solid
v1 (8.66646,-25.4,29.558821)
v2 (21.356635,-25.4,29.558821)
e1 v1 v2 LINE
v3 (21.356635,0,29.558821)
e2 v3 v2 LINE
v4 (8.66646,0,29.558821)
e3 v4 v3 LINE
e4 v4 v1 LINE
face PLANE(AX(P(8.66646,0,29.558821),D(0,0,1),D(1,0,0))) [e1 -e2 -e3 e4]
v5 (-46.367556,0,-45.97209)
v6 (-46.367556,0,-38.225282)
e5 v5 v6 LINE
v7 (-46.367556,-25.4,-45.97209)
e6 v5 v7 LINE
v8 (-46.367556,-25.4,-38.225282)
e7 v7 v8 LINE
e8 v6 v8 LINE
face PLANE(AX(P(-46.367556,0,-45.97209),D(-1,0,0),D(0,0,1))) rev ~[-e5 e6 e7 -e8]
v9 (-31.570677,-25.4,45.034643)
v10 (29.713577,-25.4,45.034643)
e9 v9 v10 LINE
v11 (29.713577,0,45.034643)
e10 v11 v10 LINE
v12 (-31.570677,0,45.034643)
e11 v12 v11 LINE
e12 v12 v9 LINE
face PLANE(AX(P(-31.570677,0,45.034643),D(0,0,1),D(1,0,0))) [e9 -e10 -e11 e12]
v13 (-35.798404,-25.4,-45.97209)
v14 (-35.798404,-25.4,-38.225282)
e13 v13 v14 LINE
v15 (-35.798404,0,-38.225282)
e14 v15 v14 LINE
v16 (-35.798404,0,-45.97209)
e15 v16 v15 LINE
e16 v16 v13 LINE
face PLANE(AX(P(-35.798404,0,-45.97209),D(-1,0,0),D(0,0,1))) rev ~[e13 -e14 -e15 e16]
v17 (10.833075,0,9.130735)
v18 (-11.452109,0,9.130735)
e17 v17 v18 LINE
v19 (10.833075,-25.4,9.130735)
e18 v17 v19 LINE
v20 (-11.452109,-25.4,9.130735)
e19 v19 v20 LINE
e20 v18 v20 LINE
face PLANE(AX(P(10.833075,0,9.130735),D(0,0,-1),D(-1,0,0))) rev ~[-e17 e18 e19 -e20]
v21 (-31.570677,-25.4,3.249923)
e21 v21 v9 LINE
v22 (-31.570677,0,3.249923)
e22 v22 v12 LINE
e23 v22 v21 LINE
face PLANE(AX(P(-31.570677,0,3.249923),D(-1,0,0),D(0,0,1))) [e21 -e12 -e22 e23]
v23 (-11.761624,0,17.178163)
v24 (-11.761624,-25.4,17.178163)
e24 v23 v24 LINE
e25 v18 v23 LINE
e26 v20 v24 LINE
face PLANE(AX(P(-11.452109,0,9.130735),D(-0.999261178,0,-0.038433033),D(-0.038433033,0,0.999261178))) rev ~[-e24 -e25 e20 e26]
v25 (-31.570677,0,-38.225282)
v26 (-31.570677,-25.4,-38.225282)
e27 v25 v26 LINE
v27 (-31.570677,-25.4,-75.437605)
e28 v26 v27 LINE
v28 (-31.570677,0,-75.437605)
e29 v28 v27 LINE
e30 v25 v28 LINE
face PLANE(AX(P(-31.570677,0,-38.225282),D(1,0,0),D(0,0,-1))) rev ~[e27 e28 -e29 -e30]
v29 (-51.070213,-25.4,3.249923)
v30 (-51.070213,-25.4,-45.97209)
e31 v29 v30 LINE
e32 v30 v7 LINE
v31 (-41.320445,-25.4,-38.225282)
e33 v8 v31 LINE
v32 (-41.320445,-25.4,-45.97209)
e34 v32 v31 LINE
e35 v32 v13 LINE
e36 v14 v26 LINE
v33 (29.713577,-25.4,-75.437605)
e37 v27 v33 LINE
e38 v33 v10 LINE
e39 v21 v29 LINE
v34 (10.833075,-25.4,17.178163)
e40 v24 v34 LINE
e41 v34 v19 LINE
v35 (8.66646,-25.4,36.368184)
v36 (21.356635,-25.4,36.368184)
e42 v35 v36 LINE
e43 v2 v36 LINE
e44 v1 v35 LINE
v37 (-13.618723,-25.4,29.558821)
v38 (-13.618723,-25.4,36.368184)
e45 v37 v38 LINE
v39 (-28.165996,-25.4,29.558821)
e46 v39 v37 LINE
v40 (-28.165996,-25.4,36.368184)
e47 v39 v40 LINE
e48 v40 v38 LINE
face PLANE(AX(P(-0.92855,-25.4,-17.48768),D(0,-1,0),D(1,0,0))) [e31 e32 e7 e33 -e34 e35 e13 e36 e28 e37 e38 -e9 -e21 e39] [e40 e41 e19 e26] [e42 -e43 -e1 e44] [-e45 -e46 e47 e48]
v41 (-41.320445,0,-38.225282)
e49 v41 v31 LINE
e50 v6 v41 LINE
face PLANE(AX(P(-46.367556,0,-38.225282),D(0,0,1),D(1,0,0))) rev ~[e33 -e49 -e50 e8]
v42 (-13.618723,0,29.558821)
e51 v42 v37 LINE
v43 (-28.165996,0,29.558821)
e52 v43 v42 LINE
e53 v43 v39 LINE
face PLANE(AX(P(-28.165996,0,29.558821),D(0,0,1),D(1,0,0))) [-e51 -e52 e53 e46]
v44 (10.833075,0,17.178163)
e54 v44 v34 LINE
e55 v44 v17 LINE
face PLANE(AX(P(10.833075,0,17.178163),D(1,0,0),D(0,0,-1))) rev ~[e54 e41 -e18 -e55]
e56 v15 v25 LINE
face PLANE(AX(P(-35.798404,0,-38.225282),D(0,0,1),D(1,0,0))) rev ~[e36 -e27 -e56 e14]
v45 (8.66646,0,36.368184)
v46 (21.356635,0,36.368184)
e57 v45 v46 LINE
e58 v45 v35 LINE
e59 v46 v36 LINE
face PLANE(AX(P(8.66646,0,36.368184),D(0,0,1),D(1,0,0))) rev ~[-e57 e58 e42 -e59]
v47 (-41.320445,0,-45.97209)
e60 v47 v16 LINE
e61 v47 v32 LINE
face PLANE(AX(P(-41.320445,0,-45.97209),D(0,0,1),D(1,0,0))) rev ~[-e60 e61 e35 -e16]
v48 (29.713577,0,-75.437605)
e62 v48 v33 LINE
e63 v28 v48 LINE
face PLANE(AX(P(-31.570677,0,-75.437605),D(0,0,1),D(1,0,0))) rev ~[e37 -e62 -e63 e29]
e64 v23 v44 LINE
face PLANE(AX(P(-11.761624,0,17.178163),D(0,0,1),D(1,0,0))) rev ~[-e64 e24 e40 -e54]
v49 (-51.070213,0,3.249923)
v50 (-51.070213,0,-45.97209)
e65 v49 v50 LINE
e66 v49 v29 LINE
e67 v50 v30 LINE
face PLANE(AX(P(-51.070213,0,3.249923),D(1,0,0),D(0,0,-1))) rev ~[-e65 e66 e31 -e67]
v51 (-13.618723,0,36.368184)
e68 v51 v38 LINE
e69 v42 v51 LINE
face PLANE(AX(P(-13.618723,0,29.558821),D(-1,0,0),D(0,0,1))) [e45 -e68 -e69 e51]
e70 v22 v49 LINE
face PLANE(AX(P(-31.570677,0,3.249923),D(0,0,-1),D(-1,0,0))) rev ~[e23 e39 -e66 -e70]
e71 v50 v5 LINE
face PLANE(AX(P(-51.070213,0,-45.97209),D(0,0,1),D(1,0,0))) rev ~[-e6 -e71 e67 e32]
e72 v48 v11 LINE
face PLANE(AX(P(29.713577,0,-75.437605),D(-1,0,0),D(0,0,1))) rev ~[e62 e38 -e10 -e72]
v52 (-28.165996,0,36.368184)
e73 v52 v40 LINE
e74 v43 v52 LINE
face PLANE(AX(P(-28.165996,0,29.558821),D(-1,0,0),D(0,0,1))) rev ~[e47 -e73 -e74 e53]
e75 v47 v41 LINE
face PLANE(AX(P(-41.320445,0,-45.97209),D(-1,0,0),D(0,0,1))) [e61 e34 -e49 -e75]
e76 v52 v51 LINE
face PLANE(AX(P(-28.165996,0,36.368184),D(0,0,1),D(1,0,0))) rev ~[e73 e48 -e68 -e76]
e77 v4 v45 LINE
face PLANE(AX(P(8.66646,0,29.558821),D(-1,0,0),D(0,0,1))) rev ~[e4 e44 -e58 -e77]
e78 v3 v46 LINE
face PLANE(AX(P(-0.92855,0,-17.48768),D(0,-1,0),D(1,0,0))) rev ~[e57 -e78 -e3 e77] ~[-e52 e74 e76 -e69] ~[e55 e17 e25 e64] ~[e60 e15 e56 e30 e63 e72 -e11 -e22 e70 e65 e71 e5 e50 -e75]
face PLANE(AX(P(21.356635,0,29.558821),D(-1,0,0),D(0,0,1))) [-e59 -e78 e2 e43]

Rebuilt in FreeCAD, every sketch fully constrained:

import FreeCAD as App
import Part
import Sketcher
Q = App.Units.Quantity

doc = App.newDocument("Part")
body = doc.addObject("PartDesign::Body", "Body")

sketch1 = body.newObject("Sketcher::SketchObject", "Sketch")
sketch1.AttachmentSupport = (doc.getObject("XZ_Plane"), [""])
sketch1.MapMode = "FlatFace"
sketch1.addGeometry(Part.LineSegment(App.Vector(-31.6, 3.2, 0), App.Vector(-51.1, 3.2, 0)), False)
sketch1.addGeometry(Part.LineSegment(App.Vector(-51.1, 3.2, 0), App.Vector(-51.1, -46, 0)), False)
sketch1.addGeometry(Part.LineSegment(App.Vector(-51.1, -46, 0), App.Vector(-46.4, -46, 0)), False)
sketch1.addGeometry(Part.LineSegment(App.Vector(-46.4, -46, 0), App.Vector(-46.4, -38.2, 0)), False)
sketch1.addGeometry(Part.LineSegment(App.Vector(-46.4, -38.2, 0), App.Vector(-41.3, -38.2, 0)), False)
sketch1.addGeometry(Part.LineSegment(App.Vector(-41.3, -38.2, 0), App.Vector(-41.3, -46, 0)), False)
sketch1.addGeometry(Part.LineSegment(App.Vector(-41.3, -46, 0), App.Vector(-35.8, -46, 0)), False)
sketch1.addGeometry(Part.LineSegment(App.Vector(-35.8, -46, 0), App.Vector(-35.8, -38.2, 0)), False)
sketch1.addGeometry(Part.LineSegment(App.Vector(-35.8, -38.2, 0), App.Vector(-31.6, -38.2, 0)), False)
sketch1.addGeometry(Part.LineSegment(App.Vector(-31.6, -38.2, 0), App.Vector(-31.6, -75.4, 0)), False)
sketch1.addGeometry(Part.LineSegment(App.Vector(-31.6, -75.4, 0), App.Vector(29.7, -75.4, 0)), False)
sketch1.addGeometry(Part.LineSegment(App.Vector(29.7, -75.4, 0), App.Vector(29.7, 45, 0)), False)
sketch1.addGeometry(Part.LineSegment(App.Vector(29.7, 45, 0), App.Vector(-31.6, 45, 0)), False)
sketch1.addGeometry(Part.LineSegment(App.Vector(-31.6, 45, 0), App.Vector(-31.6, 3.2, 0)), False)
sketch1.addGeometry(Part.LineSegment(App.Vector(10.8, 9.1, 0), App.Vector(-11.5, 9.1, 0)), False)
sketch1.addGeometry(Part.LineSegment(App.Vector(-11.5, 9.1, 0), App.Vector(-11.8, 17.2, 0)), False)
sketch1.addGeometry(Part.LineSegment(App.Vector(-11.8, 17.2, 0), App.Vector(10.8, 17.2, 0)), False)
sketch1.addGeometry(Part.LineSegment(App.Vector(10.8, 17.2, 0), App.Vector(10.8, 9.1, 0)), False)
sketch1.addGeometry(Part.LineSegment(App.Vector(-13.6, 29.6, 0), App.Vector(-28.2, 29.6, 0)), False)
sketch1.addGeometry(Part.LineSegment(App.Vector(-28.2, 29.6, 0), App.Vector(-28.2, 36.4, 0)), False)
sketch1.addGeometry(Part.LineSegment(App.Vector(-28.2, 36.4, 0), App.Vector(-13.6, 36.4, 0)), False)
sketch1.addGeometry(Part.LineSegment(App.Vector(-13.6, 36.4, 0), App.Vector(-13.6, 29.6, 0)), False)
sketch1.addGeometry(Part.LineSegment(App.Vector(21.4, 29.6, 0), App.Vector(8.7, 29.6, 0)), False)
sketch1.addGeometry(Part.LineSegment(App.Vector(8.7, 29.6, 0), App.Vector(8.7, 36.4, 0)), False)
sketch1.addGeometry(Part.LineSegment(App.Vector(8.7, 36.4, 0), App.Vector(21.4, 36.4, 0)), False)
sketch1.addGeometry(Part.LineSegment(App.Vector(21.4, 36.4, 0), App.Vector(21.4, 29.6, 0)), False)
sketch1.addConstraint(Sketcher.Constraint("Coincident", 0, 2, 1, 1))
sketch1.addConstraint(Sketcher.Constraint("Coincident", 1, 2, 2, 1))
sketch1.addConstraint(Sketcher.Constraint("Coincident", 2, 2, 3, 1))
sketch1.addConstraint(Sketcher.Constraint("Coincident", 3, 2, 4, 1))
sketch1.addConstraint(Sketcher.Constraint("Coincident", 4, 2, 5, 1))
sketch1.addConstraint(Sketcher.Constraint("Coincident", 5, 2, 6, 1))
sketch1.addConstraint(Sketcher.Constraint("Coincident", 6, 2, 7, 1))
sketch1.addConstraint(Sketcher.Constraint("Coincident", 7, 2, 8, 1))
sketch1.addConstraint(Sketcher.Constraint("Coincident", 8, 2, 9, 1))
sketch1.addConstraint(Sketcher.Constraint("Coincident", 9, 2, 10, 1))
sketch1.addConstraint(Sketcher.Constraint("Coincident", 10, 2, 11, 1))
sketch1.addConstraint(Sketcher.Constraint("Coincident", 11, 2, 12, 1))
sketch1.addConstraint(Sketcher.Constraint("Coincident", 12, 2, 13, 1))
sketch1.addConstraint(Sketcher.Constraint("Coincident", 13, 2, 0, 1))
sketch1.addConstraint(Sketcher.Constraint("Coincident", 14, 2, 15, 1))
sketch1.addConstraint(Sketcher.Constraint("Coincident", 15, 2, 16, 1))
sketch1.addConstraint(Sketcher.Constraint("Coincident", 16, 2, 17, 1))
sketch1.addConstraint(Sketcher.Constraint("Coincident", 17, 2, 14, 1))
sketch1.addConstraint(Sketcher.Constraint("Coincident", 18, 2, 19, 1))
sketch1.addConstraint(Sketcher.Constraint("Coincident", 19, 2, 20, 1))
sketch1.addConstraint(Sketcher.Constraint("Coincident", 20, 2, 21, 1))
sketch1.addConstraint(Sketcher.Constraint("Coincident", 21, 2, 18, 1))
sketch1.addConstraint(Sketcher.Constraint("Coincident", 22, 2, 23, 1))
sketch1.addConstraint(Sketcher.Constraint("Coincident", 23, 2, 24, 1))
sketch1.addConstraint(Sketcher.Constraint("Coincident", 24, 2, 25, 1))
sketch1.addConstraint(Sketcher.Constraint("Coincident", 25, 2, 22, 1))
sketch1.addConstraint(Sketcher.Constraint("Horizontal", 0))
sketch1.addConstraint(Sketcher.Constraint("Vertical", 1))
sketch1.addConstraint(Sketcher.Constraint("Horizontal", 2))
sketch1.addConstraint(Sketcher.Constraint("Vertical", 3))
sketch1.addConstraint(Sketcher.Constraint("Horizontal", 4))
sketch1.addConstraint(Sketcher.Constraint("Vertical", 5))
sketch1.addConstraint(Sketcher.Constraint("Horizontal", 6))
sketch1.addConstraint(Sketcher.Constraint("Vertical", 7))
sketch1.addConstraint(Sketcher.Constraint("Horizontal", 8))
sketch1.addConstraint(Sketcher.Constraint("Vertical", 9))
sketch1.addConstraint(Sketcher.Constraint("Horizontal", 10))
sketch1.addConstraint(Sketcher.Constraint("Vertical", 11))
sketch1.addConstraint(Sketcher.Constraint("Horizontal", 12))
sketch1.addConstraint(Sketcher.Constraint("Vertical", 13))
sketch1.addConstraint(Sketcher.Constraint("Horizontal", 14))
sketch1.addConstraint(Sketcher.Constraint("Horizontal", 16))
sketch1.addConstraint(Sketcher.Constraint("Vertical", 17))
sketch1.addConstraint(Sketcher.Constraint("Horizontal", 18))
sketch1.addConstraint(Sketcher.Constraint("Vertical", 19))
sketch1.addConstraint(Sketcher.Constraint("Horizontal", 20))
sketch1.addConstraint(Sketcher.Constraint("Vertical", 21))
sketch1.addConstraint(Sketcher.Constraint("Horizontal", 22))
sketch1.addConstraint(Sketcher.Constraint("Vertical", 23))
sketch1.addConstraint(Sketcher.Constraint("Horizontal", 24))
sketch1.addConstraint(Sketcher.Constraint("Vertical", 25))
sketch1.addConstraint(Sketcher.Constraint("Horizontal", 2, 2, 5, 2))
sketch1.addConstraint(Sketcher.Constraint("Horizontal", 4, 2, 7, 2))
sketch1.addConstraint(Sketcher.Constraint("Horizontal", 21, 2, 22, 2))
sketch1.addConstraint(Sketcher.Constraint("Horizontal", 20, 2, 23, 2))
sketch1.addConstraint(Sketcher.Constraint("Vertical", 9, 2, 12, 2))
sketch1.addConstraint(Sketcher.Constraint("DistanceX", 16, 1, 16, 2, 22.5947))
sketch1.addConstraint(Sketcher.Constraint("DistanceX", 4, 1, 4, 2, 5.047111))
sketch1.addConstraint(Sketcher.Constraint("DistanceX", 6, 1, 6, 2, 5.522041))
sketch1.addConstraint(Sketcher.Constraint("DistanceY", 3, 1, 3, 2, 7.746808))
sketch1.addConstraint(Sketcher.Constraint("DistanceY", 11, 1, 11, 2, 120.472249))
sketch1.addConstraint(Sketcher.Constraint("DistanceY", 13, 2, 13, 1, 41.78472))
sketch1.addConstraint(Sketcher.Constraint("DistanceX", 15, 2, 11, 2, 41.475201))
sketch1.addConstraint(Sketcher.Constraint("DistanceX", 20, 2, 15, 2, 1.857098))
sketch1.addConstraint(Sketcher.Constraint("DistanceX", 0, 2, 0, 1, 19.499537))
sketch1.addConstraint(Sketcher.Constraint("DistanceX", 2, 1, 2, 2, 4.702657))
sketch1.addConstraint(Sketcher.Constraint("DistanceX", 10, 1, 10, 2, 61.284253))
sketch1.addConstraint(Sketcher.Constraint("DistanceX", 14, 2, 14, 1, 22.285184))
sketch1.addConstraint(Sketcher.Constraint("DistanceX", 18, 2, 18, 1, 14.547274))
sketch1.addConstraint(Sketcher.Constraint("DistanceX", 22, 2, 22, 1, 12.690174))
sketch1.addConstraint(Sketcher.Constraint("DistanceY", 1, 2, 1, 1, 49.222013))
sketch1.addConstraint(Sketcher.Constraint("DistanceY", 17, 2, 17, 1, 8.047428))
sketch1.addConstraint(Sketcher.Constraint("DistanceY", 19, 1, 19, 2, 6.809363))
sketch1.addConstraint(Sketcher.Constraint("DistanceY", 1, 2, -1, 1, 45.97209))
sketch1.addConstraint(Sketcher.Constraint("DistanceX", 14, 2, -1, 1, 11.452109))
sketch1.addConstraint(Sketcher.Constraint("DistanceY", -1, 1, 18, 2, 29.558821))
sketch1.addConstraint(Sketcher.Constraint("DistanceX", -1, 1, 22, 2, 8.66646))
sketch1.addConstraint(Sketcher.Constraint("DistanceY", 14, 2, 12, 2, 35.903908))
pad1 = body.newObject("PartDesign::Pad", "Pad")
pad1.Profile = sketch1
pad1.Length = Q("1 in")

doc.recompute()
